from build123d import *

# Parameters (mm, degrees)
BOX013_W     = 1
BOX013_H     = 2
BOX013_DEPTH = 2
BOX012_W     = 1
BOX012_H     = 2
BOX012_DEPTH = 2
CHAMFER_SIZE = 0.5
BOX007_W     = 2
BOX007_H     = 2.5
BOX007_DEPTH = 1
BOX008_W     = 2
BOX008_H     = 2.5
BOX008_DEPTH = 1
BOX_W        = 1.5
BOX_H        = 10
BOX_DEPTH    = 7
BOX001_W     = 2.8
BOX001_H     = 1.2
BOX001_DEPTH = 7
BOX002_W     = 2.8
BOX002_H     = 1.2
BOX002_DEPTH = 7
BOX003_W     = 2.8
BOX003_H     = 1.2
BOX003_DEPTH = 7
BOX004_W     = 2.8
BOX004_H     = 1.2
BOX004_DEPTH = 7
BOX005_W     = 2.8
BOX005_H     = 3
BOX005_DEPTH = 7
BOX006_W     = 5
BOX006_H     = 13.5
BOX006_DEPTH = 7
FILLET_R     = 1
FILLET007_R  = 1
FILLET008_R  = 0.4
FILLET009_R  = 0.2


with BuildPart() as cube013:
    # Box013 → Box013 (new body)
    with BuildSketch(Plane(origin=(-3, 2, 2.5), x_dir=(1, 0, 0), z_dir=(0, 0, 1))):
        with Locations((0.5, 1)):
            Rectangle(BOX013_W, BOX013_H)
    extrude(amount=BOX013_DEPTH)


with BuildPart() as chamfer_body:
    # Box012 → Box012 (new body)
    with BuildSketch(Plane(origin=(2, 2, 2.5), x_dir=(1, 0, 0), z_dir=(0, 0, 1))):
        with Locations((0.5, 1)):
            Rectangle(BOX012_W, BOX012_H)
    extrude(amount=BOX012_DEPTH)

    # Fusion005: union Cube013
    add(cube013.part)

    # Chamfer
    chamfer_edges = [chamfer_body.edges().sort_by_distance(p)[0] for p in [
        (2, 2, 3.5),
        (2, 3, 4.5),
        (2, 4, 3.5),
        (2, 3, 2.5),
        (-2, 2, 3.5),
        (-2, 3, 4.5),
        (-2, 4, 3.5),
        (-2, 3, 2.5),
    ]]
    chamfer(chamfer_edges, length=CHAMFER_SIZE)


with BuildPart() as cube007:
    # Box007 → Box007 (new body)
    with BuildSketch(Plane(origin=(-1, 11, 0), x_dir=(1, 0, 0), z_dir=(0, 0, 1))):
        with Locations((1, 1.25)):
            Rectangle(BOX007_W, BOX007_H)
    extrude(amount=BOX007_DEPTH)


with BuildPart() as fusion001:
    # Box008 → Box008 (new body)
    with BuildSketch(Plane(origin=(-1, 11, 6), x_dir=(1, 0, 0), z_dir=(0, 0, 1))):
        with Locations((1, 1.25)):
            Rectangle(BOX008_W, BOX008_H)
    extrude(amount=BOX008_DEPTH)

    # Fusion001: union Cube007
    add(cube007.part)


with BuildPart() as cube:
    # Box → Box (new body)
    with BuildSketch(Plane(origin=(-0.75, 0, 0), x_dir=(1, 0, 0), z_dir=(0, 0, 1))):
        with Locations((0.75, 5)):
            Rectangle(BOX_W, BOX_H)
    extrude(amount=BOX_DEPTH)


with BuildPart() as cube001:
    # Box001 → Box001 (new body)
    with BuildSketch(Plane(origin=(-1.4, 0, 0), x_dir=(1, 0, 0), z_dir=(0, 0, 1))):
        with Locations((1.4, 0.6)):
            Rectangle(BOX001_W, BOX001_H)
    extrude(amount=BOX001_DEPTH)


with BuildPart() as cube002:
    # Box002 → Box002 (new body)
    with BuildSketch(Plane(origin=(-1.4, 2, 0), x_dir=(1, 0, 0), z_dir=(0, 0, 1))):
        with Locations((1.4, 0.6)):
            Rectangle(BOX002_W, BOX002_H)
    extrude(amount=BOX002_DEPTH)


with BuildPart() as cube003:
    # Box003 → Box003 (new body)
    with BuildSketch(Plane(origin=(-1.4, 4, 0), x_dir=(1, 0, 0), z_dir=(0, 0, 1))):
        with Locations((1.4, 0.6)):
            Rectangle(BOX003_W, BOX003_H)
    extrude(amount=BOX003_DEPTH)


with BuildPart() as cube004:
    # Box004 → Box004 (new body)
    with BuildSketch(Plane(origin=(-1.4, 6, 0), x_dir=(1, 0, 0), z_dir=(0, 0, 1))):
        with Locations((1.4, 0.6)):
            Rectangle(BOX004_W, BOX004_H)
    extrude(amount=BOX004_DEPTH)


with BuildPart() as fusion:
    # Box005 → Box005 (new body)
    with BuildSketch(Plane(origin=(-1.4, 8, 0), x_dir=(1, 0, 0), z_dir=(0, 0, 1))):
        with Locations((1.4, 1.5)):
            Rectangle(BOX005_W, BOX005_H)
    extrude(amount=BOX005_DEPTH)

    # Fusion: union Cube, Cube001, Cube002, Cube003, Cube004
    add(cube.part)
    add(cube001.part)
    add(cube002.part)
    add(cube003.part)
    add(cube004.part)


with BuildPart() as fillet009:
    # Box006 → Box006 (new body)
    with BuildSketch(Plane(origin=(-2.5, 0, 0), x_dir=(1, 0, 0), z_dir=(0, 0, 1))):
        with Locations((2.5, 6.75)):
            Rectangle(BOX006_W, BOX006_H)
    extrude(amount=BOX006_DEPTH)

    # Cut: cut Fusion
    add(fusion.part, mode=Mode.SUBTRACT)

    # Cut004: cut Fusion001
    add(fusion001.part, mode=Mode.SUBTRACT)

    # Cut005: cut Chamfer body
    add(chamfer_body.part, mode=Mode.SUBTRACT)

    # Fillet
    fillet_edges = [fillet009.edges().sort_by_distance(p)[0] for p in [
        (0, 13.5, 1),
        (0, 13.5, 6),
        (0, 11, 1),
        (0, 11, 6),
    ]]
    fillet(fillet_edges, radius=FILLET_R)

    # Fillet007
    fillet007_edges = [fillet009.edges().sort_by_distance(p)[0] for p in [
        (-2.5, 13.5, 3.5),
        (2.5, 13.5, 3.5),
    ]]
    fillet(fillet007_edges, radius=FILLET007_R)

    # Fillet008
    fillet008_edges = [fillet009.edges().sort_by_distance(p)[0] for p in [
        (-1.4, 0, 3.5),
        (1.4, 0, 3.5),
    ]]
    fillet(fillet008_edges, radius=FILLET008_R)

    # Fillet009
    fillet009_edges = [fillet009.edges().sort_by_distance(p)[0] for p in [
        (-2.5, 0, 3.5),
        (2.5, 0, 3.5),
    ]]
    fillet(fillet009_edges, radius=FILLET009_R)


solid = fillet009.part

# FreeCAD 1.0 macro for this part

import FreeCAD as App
import Part
import Sketcher
from FreeCAD import Vector


def edges_at(feature, points):
    """Names of the edges that pass closest to the given points."""
    edges = feature.Shape.Edges
    near = lambda p: min(range(len(edges)), key=lambda i: edges[i].distToShape(Part.Vertex(*p))[0])
    return sorted({f"Edge{near(p) + 1}" for p in points})


def add_polygon(sketch, points):
    """Adds a closed chain of lines whose ends are joined by coincident constraints."""
    first, n = sketch.GeometryCount, len(points)
    for a, b in zip(points, points[1:] + points[:1]):
        sketch.addGeometry(Part.LineSegment(App.Vector(*a, 0), App.Vector(*b, 0)), False)
    for i in range(n):
        sketch.addConstraint(Sketcher.Constraint("Coincident", first + i, 2, first + (i + 1) % n, 1))

doc = App.newDocument("Part")
body = doc.addObject("PartDesign::Body", "Body")

# Sketch on XY plane
sketch1 = doc.addObject("Sketcher::SketchObject", "Sketch")
body.addObject(sketch1)
sketch1.AttachmentSupport = (doc.XY_Plane, [""])
sketch1.MapMode = "FlatFace"
sketch1.AttachmentOffset = App.Placement(Vector(0, 0, 2.5), App.Rotation())
add_polygon(sketch1, [(-3, 4), (-3, 2), (-2, 2), (-2, 4)])  # lines 0-3
sketch1.addConstraint([
    Sketcher.Constraint("Vertical", 0),
    Sketcher.Constraint("Horizontal", 1),
    Sketcher.Constraint("Vertical", 2),
    Sketcher.Constraint("Horizontal", 3),
    Sketcher.Constraint("DistanceX", 1, 1, 1, 2, 1.0),
    Sketcher.Constraint("DistanceY", 0, 2, 0, 1, 2.0),
    Sketcher.Constraint("DistanceX", 0, 2, -1, 1, 3.0),
    Sketcher.Constraint("DistanceY", -1, 1, 0, 2, 2.0),
])
pad1 = doc.addObject("PartDesign::Pad", "Pad")
body.addObject(pad1)
pad1.Profile = sketch1
pad1.Length = 2
body2 = doc.addObject("PartDesign::Body", "Body001")
body2.AllowCompound = True

# Sketch on XY plane
sketch2 = doc.addObject("Sketcher::SketchObject", "Sketch001")
body2.addObject(sketch2)
sketch2.AttachmentSupport = (doc.getObject("XY_Plane001"), [""])
sketch2.MapMode = "FlatFace"
sketch2.AttachmentOffset = App.Placement(Vector(0, 0, 2.5), App.Rotation())
add_polygon(sketch2, [(2, 4), (2, 2), (3, 2), (3, 4)])  # lines 0-3
sketch2.addConstraint([
    Sketcher.Constraint("Vertical", 0),
    Sketcher.Constraint("Horizontal", 1),
    Sketcher.Constraint("Vertical", 2),
    Sketcher.Constraint("Horizontal", 3),
    Sketcher.Constraint("DistanceX", 1, 1, 1, 2, 1.0),
    Sketcher.Constraint("DistanceY", 0, 2, 0, 1, 2.0),
    Sketcher.Constraint("DistanceX", -1, 1, 0, 2, 2.0),
    Sketcher.Constraint("DistanceY", -1, 1, 0, 2, 2.0),
])
pad2 = doc.addObject("PartDesign::Pad", "Pad001")
body2.addObject(pad2)
pad2.Profile = sketch2
pad2.Length = 2
doc.recompute()

boolean = doc.addObject("PartDesign::Boolean", "Boolean")
body2.addObject(boolean)
boolean.Type = "Fuse"
boolean.addObjects([body])
doc.recompute()

chamfer = doc.addObject("PartDesign::Chamfer", "Chamfer")
body2.addObject(chamfer)
chamfer.Base = (boolean, edges_at(boolean, [
    (2, 2, 3.5),
    (2, 3, 4.5),
    (2, 4, 3.5),
    (2, 3, 2.5),
    (-2, 2, 3.5),
    (-2, 3, 4.5),
    (-2, 4, 3.5),
    (-2, 3, 2.5),
]))
chamfer.Size = 0.5
body3 = doc.addObject("PartDesign::Body", "Body002")

# Sketch on XY plane
sketch3 = doc.addObject("Sketcher::SketchObject", "Sketch002")
body3.addObject(sketch3)
sketch3.AttachmentSupport = (doc.getObject("XY_Plane002"), [""])
sketch3.MapMode = "FlatFace"
add_polygon(sketch3, [(-1, 13.5), (-1, 11), (1, 11), (1, 13.5)])  # lines 0-3
sketch3.addConstraint([
    Sketcher.Constraint("Vertical", 0),
    Sketcher.Constraint("Horizontal", 1),
    Sketcher.Constraint("Vertical", 2),
    Sketcher.Constraint("Horizontal", 3),
    Sketcher.Constraint("DistanceX", 1, 1, 1, 2, 2.0),
    Sketcher.Constraint("DistanceY", 0, 2, 0, 1, 2.5),
    Sketcher.Constraint("DistanceX", 0, 2, -1, 1, 1.0),
    Sketcher.Constraint("DistanceY", -1, 1, 0, 2, 11.0),
])
pad3 = doc.addObject("PartDesign::Pad", "Pad002")
body3.addObject(pad3)
pad3.Profile = sketch3
pad3.Length = 1
body4 = doc.addObject("PartDesign::Body", "Body003")
body4.AllowCompound = True

# Sketch on XY plane
sketch4 = doc.addObject("Sketcher::SketchObject", "Sketch003")
body4.addObject(sketch4)
sketch4.AttachmentSupport = (doc.getObject("XY_Plane003"), [""])
sketch4.MapMode = "FlatFace"
sketch4.AttachmentOffset = App.Placement(Vector(0, 0, 6), App.Rotation())
add_polygon(sketch4, [(-1, 13.5), (-1, 11), (1, 11), (1, 13.5)])  # lines 0-3
sketch4.addConstraint([
    Sketcher.Constraint("Vertical", 0),
    Sketcher.Constraint("Horizontal", 1),
    Sketcher.Constraint("Vertical", 2),
    Sketcher.Constraint("Horizontal", 3),
    Sketcher.Constraint("DistanceX", 1, 1, 1, 2, 2.0),
    Sketcher.Constraint("DistanceY", 0, 2, 0, 1, 2.5),
    Sketcher.Constraint("DistanceX", 0, 2, -1, 1, 1.0),
    Sketcher.Constraint("DistanceY", -1, 1, 0, 2, 11.0),
])
pad4 = doc.addObject("PartDesign::Pad", "Pad003")
body4.addObject(pad4)
pad4.Profile = sketch4
pad4.Length = 1
doc.recompute()

boolean2 = doc.addObject("PartDesign::Boolean", "Boolean001")
body4.addObject(boolean2)
boolean2.Type = "Fuse"
boolean2.addObjects([body3])
body5 = doc.addObject("PartDesign::Body", "Body004")

# Sketch on XY plane
sketch5 = doc.addObject("Sketcher::SketchObject", "Sketch004")
body5.addObject(sketch5)
sketch5.AttachmentSupport = (doc.getObject("XY_Plane004"), [""])
sketch5.MapMode = "FlatFace"
add_polygon(sketch5, [(-0.8, 10), (-0.8, 0), (0.8, 0), (0.8, 10)])  # lines 0-3
sketch5.addConstraint([
    Sketcher.Constraint("Vertical", 0),
    Sketcher.Constraint("Horizontal", 1),
    Sketcher.Constraint("Vertical", 2),
    Sketcher.Constraint("Horizontal", 3),
    Sketcher.Constraint("Symmetric", 0, 2, 1, 2, -1, 1),
    Sketcher.Constraint("DistanceY", 0, 2, 0, 1, 10.0),
    Sketcher.Constraint("DistanceX", 1, 1, 1, 2, 1.5),
])
pad5 = doc.addObject("PartDesign::Pad", "Pad004")
body5.addObject(pad5)
pad5.Profile = sketch5
pad5.Length = 7
body6 = doc.addObject("PartDesign::Body", "Body005")

# Sketch on XY plane
sketch6 = doc.addObject("Sketcher::SketchObject", "Sketch005")
body6.addObject(sketch6)
sketch6.AttachmentSupport = (doc.getObject("XY_Plane005"), [""])
sketch6.MapMode = "FlatFace"
add_polygon(sketch6, [(-1.4, 1.2), (-1.4, 0), (1.4, 0), (1.4, 1.2)])  # lines 0-3
sketch6.addConstraint([
    Sketcher.Constraint("Vertical", 0),
    Sketcher.Constraint("Horizontal", 1),
    Sketcher.Constraint("Vertical", 2),
    Sketcher.Constraint("Horizontal", 3),
    Sketcher.Constraint("Symmetric", 0, 2, 1, 2, -1, 1),
    Sketcher.Constraint("DistanceX", 1, 1, 1, 2, 2.8),
    Sketcher.Constraint("DistanceY", 0, 2, 0, 1, 1.2),
])
pad6 = doc.addObject("PartDesign::Pad", "Pad005")
body6.addObject(pad6)
pad6.Profile = sketch6
pad6.Length = 7
body7 = doc.addObject("PartDesign::Body", "Body006")

# Sketch on XY plane
sketch7 = doc.addObject("Sketcher::SketchObject", "Sketch006")
body7.addObject(sketch7)
sketch7.AttachmentSupport = (doc.getObject("XY_Plane006"), [""])
sketch7.MapMode = "FlatFace"
add_polygon(sketch7, [(-1.4, 3.2), (-1.4, 2), (1.4, 2), (1.4, 3.2)])  # lines 0-3
sketch7.addConstraint([
    Sketcher.Constraint("Vertical", 0),
    Sketcher.Constraint("Horizontal", 1),
    Sketcher.Constraint("Vertical", 2),
    Sketcher.Constraint("Horizontal", 3),
    Sketcher.Constraint("DistanceX", 1, 1, 1, 2, 2.8),
    Sketcher.Constraint("DistanceY", 0, 2, 0, 1, 1.2),
    Sketcher.Constraint("DistanceY", -1, 1, 0, 2, 2.0),
    Sketcher.Constraint("DistanceX", 0, 2, -1, 1, 1.4),
])
pad7 = doc.addObject("PartDesign::Pad", "Pad006")
body7.addObject(pad7)
pad7.Profile = sketch7
pad7.Length = 7
body8 = doc.addObject("PartDesign::Body", "Body007")

# Sketch on XY plane
sketch8 = doc.addObject("Sketcher::SketchObject", "Sketch007")
body8.addObject(sketch8)
sketch8.AttachmentSupport = (doc.getObject("XY_Plane007"), [""])
sketch8.MapMode = "FlatFace"
add_polygon(sketch8, [(-1.4, 5.2), (-1.4, 4), (1.4, 4), (1.4, 5.2)])  # lines 0-3
sketch8.addConstraint([
    Sketcher.Constraint("Vertical", 0),
    Sketcher.Constraint("Horizontal", 1),
    Sketcher.Constraint("Vertical", 2),
    Sketcher.Constraint("Horizontal", 3),
    Sketcher.Constraint("DistanceX", 1, 1, 1, 2, 2.8),
    Sketcher.Constraint("DistanceY", 0, 2, 0, 1, 1.2),
    Sketcher.Constraint("DistanceY", -1, 1, 0, 2, 4.0),
    Sketcher.Constraint("DistanceX", 0, 2, -1, 1, 1.4),
])
pad8 = doc.addObject("PartDesign::Pad", "Pad007")
body8.addObject(pad8)
pad8.Profile = sketch8
pad8.Length = 7
body9 = doc.addObject("PartDesign::Body", "Body008")

# Sketch on XY plane
sketch9 = doc.addObject("Sketcher::SketchObject", "Sketch008")
body9.addObject(sketch9)
sketch9.AttachmentSupport = (doc.getObject("XY_Plane008"), [""])
sketch9.MapMode = "FlatFace"
add_polygon(sketch9, [(-1.4, 7.2), (-1.4, 6), (1.4, 6), (1.4, 7.2)])  # lines 0-3
sketch9.addConstraint([
    Sketcher.Constraint("Vertical", 0),
    Sketcher.Constraint("Horizontal", 1),
    Sketcher.Constraint("Vertical", 2),
    Sketcher.Constraint("Horizontal", 3),
    Sketcher.Constraint("DistanceX", 1, 1, 1, 2, 2.8),
    Sketcher.Constraint("DistanceY", 0, 2, 0, 1, 1.2),
    Sketcher.Constraint("DistanceY", -1, 1, 0, 2, 6.0),
    Sketcher.Constraint("DistanceX", 0, 2, -1, 1, 1.4),
])
pad9 = doc.addObject("PartDesign::Pad", "Pad008")
body9.addObject(pad9)
pad9.Profile = sketch9
pad9.Length = 7
body10 = doc.addObject("PartDesign::Body", "Body009")

# Sketch on XY plane
sketch10 = doc.addObject("Sketcher::SketchObject", "Sketch009")
body10.addObject(sketch10)
sketch10.AttachmentSupport = (doc.getObject("XY_Plane009"), [""])
sketch10.MapMode = "FlatFace"
add_polygon(sketch10, [(-1.4, 11), (-1.4, 8), (1.4, 8), (1.4, 11)])  # lines 0-3
sketch10.addConstraint([
    Sketcher.Constraint("Vertical", 0),
    Sketcher.Constraint("Horizontal", 1),
    Sketcher.Constraint("Vertical", 2),
    Sketcher.Constraint("Horizontal", 3),
    Sketcher.Constraint("DistanceY", 0, 2, 0, 1, 3.0),
    Sketcher.Constraint("DistanceX", 1, 1, 1, 2, 2.8),
    Sketcher.Constraint("DistanceY", -1, 1, 0, 2, 8.0),
    Sketcher.Constraint("DistanceX", 0, 2, -1, 1, 1.4),
])
pad10 = doc.addObject("PartDesign::Pad", "Pad009")
body10.addObject(pad10)
pad10.Profile = sketch10
pad10.Length = 7
doc.recompute()

boolean3 = doc.addObject("PartDesign::Boolean", "Boolean002")
body10.addObject(boolean3)
boolean3.Type = "Fuse"
boolean3.addObjects([body5])
doc.recompute()

boolean4 = doc.addObject("PartDesign::Boolean", "Boolean003")
body10.addObject(boolean4)
boolean4.Type = "Fuse"
boolean4.addObjects([body6])
doc.recompute()

boolean5 = doc.addObject("PartDesign::Boolean", "Boolean004")
body10.addObject(boolean5)
boolean5.Type = "Fuse"
boolean5.addObjects([body7])
doc.recompute()

boolean6 = doc.addObject("PartDesign::Boolean", "Boolean005")
body10.addObject(boolean6)
boolean6.Type = "Fuse"
boolean6.addObjects([body8])
doc.recompute()

boolean7 = doc.addObject("PartDesign::Boolean", "Boolean006")
body10.addObject(boolean7)
boolean7.Type = "Fuse"
boolean7.addObjects([body9])
body11 = doc.addObject("PartDesign::Body", "Body010")

# Sketch on XY plane
sketch11 = doc.addObject("Sketcher::SketchObject", "Sketch010")
body11.addObject(sketch11)
sketch11.AttachmentSupport = (doc.getObject("XY_Plane010"), [""])
sketch11.MapMode = "FlatFace"
add_polygon(sketch11, [(-2, 14), (-2, 0), (2, 0), (2, 14)])  # lines 0-3
sketch11.addConstraint([
    Sketcher.Constraint("Vertical", 0),
    Sketcher.Constraint("Horizontal", 1),
    Sketcher.Constraint("Vertical", 2),
    Sketcher.Constraint("Horizontal", 3),
    Sketcher.Constraint("Symmetric", 0, 2, 1, 2, -1, 1),
    Sketcher.Constraint("DistanceX", 1, 1, 1, 2, 5.0),
    Sketcher.Constraint("DistanceY", 0, 2, 0, 1, 13.5),
])
pad11 = doc.addObject("PartDesign::Pad", "Pad010")
body11.addObject(pad11)
pad11.Profile = sketch11
pad11.Length = 7
doc.recompute()

boolean8 = doc.addObject("PartDesign::Boolean", "Boolean007")
body11.addObject(boolean8)
boolean8.Type = "Cut"
boolean8.addObjects([body10])
doc.recompute()

boolean9 = doc.addObject("PartDesign::Boolean", "Boolean008")
body11.addObject(boolean9)
boolean9.Type = "Cut"
boolean9.addObjects([body4])
doc.recompute()

boolean10 = doc.addObject("PartDesign::Boolean", "Boolean009")
body11.addObject(boolean10)
boolean10.Type = "Cut"
boolean10.addObjects([body2])
doc.recompute()

fillet = doc.addObject("PartDesign::Fillet", "Fillet")
body11.addObject(fillet)
fillet.Base = (boolean10, edges_at(boolean10, [
    (0, 13.5, 1),
    (0, 13.5, 6),
    (0, 11, 1),
    (0, 11, 6),
]))
fillet.Radius = 1
doc.recompute()

fillet2 = doc.addObject("PartDesign::Fillet", "Fillet001")
body11.addObject(fillet2)
fillet2.Base = (fillet, edges_at(fillet, [(-2.5, 13.5, 3.5), (2.5, 13.5, 3.5)]))
fillet2.Radius = 1
doc.recompute()

fillet3 = doc.addObject("PartDesign::Fillet", "Fillet002")
body11.addObject(fillet3)
fillet3.Base = (fillet2, edges_at(fillet2, [(-1.4, 0, 3.5), (1.4, 0, 3.5)]))
fillet3.Radius = 0.4
doc.recompute()

fillet4 = doc.addObject("PartDesign::Fillet", "Fillet003")
body11.addObject(fillet4)
fillet4.Base = (fillet3, edges_at(fillet3, [(-2.5, 0, 3.5), (2.5, 0, 3.5)]))
fillet4.Radius = 0.2

doc.recompute()
